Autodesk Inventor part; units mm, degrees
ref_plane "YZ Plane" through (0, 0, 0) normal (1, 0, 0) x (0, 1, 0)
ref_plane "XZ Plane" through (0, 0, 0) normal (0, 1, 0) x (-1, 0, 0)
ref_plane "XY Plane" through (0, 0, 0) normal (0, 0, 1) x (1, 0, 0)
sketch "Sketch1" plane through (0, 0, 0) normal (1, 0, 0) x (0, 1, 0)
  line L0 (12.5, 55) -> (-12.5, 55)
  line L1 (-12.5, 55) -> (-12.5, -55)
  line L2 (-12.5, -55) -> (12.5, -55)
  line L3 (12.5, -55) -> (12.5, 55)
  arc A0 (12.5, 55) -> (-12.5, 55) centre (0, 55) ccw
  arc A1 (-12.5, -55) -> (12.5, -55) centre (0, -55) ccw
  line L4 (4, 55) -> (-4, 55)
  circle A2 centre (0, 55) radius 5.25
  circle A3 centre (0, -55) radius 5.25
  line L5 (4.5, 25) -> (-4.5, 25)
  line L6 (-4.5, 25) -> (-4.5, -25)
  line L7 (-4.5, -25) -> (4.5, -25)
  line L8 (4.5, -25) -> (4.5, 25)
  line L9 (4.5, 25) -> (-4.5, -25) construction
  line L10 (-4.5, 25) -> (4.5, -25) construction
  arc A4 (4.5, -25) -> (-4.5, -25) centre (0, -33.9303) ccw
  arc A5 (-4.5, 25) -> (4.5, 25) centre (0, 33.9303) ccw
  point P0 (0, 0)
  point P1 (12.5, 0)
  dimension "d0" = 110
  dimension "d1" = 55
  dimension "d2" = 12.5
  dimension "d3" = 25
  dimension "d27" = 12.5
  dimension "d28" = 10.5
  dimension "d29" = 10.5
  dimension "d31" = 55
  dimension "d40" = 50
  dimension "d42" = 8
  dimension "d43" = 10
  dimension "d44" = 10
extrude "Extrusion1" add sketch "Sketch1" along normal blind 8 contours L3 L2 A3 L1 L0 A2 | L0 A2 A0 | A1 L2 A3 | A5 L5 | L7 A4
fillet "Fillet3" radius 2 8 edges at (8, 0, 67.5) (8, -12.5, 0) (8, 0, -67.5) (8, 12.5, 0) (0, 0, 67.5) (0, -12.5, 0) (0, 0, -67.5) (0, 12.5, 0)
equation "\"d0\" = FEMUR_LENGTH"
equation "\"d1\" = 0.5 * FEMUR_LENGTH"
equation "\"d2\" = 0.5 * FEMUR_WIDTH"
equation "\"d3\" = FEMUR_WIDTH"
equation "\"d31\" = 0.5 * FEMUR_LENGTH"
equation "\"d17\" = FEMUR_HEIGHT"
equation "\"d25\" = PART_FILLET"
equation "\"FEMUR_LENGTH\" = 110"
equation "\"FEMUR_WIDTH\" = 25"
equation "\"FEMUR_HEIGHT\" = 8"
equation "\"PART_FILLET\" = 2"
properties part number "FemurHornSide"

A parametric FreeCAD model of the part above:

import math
import FreeCAD as App
import Part
import Sketcher
from FreeCAD import Vector


def edges_at(feature, points):
    """Names of the edges that pass closest to the given points."""
    edges = feature.Shape.Edges
    near = lambda p: min(range(len(edges)), key=lambda i: edges[i].distToShape(Part.Vertex(*p))[0])
    return sorted({f"Edge{near(p) + 1}" for p in points})

doc = App.newDocument("Part")
body = doc.addObject("PartDesign::Body", "Body")

# Sketch on YZ plane
sketch1 = body.newObject("Sketcher::SketchObject", "Sketch")
sketch1.AttachmentSupport = (doc.getObject("YZ_Plane"), [""])
sketch1.MapMode = "FlatFace"
sketch1.addGeometry(Part.LineSegment(Vector(12, -55, 0), Vector(12, 55, 0)), False)
sketch1.addGeometry(Part.ArcOfCircle(Part.Circle(Vector(0, 55, 0), Vector(0, 0, 1), 12), math.radians(0), math.radians(180)), False)
sketch1.addGeometry(Part.LineSegment(Vector(-12, 55, 0), Vector(-12, -55, 0)), False)
sketch1.addGeometry(Part.ArcOfCircle(Part.Circle(Vector(0, -55, 0), Vector(0, 0, 1), 12), math.radians(180), math.radians(360)), False)
sketch1.addGeometry(Part.Circle(Vector(0, -55, 0), Vector(0, 0, 1), 5), False)
sketch1.addGeometry(Part.Circle(Vector(0, 55, 0), Vector(0, 0, 1), 5), False)
sketch1.addGeometry(Part.LineSegment(Vector(-4, -25, 0), Vector(-4, 25, 0)), False)
sketch1.addGeometry(Part.ArcOfCircle(Part.Circle(Vector(0, 34, 0), Vector(0, 0, 1), 10), math.radians(-117), math.radians(-63)), False)
sketch1.addGeometry(Part.LineSegment(Vector(4, 25, 0), Vector(4, -25, 0)), False)
sketch1.addGeometry(Part.ArcOfCircle(Part.Circle(Vector(0, -34, 0), Vector(0, 0, 1), 10), math.radians(63), math.radians(117)), False)
sketch1.addConstraint(Sketcher.Constraint("Tangent", 0, 2, 1, 1))
sketch1.addConstraint(Sketcher.Constraint("Tangent", 1, 2, 2, 1))
sketch1.addConstraint(Sketcher.Constraint("Tangent", 2, 2, 3, 1))
sketch1.addConstraint(Sketcher.Constraint("Tangent", 3, 2, 0, 1))
sketch1.addConstraint(Sketcher.Constraint("Coincident", 6, 2, 7, 1))
sketch1.addConstraint(Sketcher.Constraint("Coincident", 7, 2, 8, 1))
sketch1.addConstraint(Sketcher.Constraint("Coincident", 8, 2, 9, 1))
sketch1.addConstraint(Sketcher.Constraint("Coincident", 9, 2, 6, 1))
sketch1.addConstraint(Sketcher.Constraint("Vertical", 0))
sketch1.addConstraint(Sketcher.Constraint("Vertical", 2))
sketch1.addConstraint(Sketcher.Constraint("Vertical", 6))
sketch1.addConstraint(Sketcher.Constraint("Vertical", 8))
sketch1.addConstraint(Sketcher.Constraint("Coincident", 4, 3, 3, 3))
sketch1.addConstraint(Sketcher.Constraint("Coincident", 5, 3, 1, 3))
sketch1.addConstraint(Sketcher.Constraint("Equal", 4, 5))
sketch1.addConstraint(Sketcher.Constraint("Equal", 7, 9))
sketch1.addConstraint(Sketcher.Constraint("Symmetric", 1, 3, 3, 3, -1, 1))
sketch1.addConstraint(Sketcher.Constraint("Symmetric", 7, 3, 9, 3, -1, 1))
sketch1.addConstraint(Sketcher.Constraint("Symmetric", 6, 2, 7, 2, -2))
sketch1.addConstraint(Sketcher.Constraint("Radius", 7, 10.0))
sketch1.addConstraint(Sketcher.Constraint("Diameter", 4, 10.5))
sketch1.addConstraint(Sketcher.Constraint("Radius", 1, 12.5))
sketch1.addConstraint(Sketcher.Constraint("DistanceY", 0, 1, 0, 2, 110.0))
sketch1.addConstraint(Sketcher.Constraint("DistanceY", 6, 1, 6, 2, 50.0))
sketch1.addConstraint(Sketcher.Constraint("DistanceX", 1, 2, 6, 2, 8.0))
pad1 = body.newObject("PartDesign::Pad", "Pad")
pad1.Profile = sketch1
pad1.Length = 8
doc.recompute()

fillet = body.newObject("PartDesign::Fillet", "Fillet")
fillet.Base = (pad1, edges_at(pad1, [
    (8, 0, 67.5),
    (8, -12.5, 0),
    (8, 0, -67.5),
    (8, 12.5, 0),
    (0, 0, 67.5),
    (0, -12.5, 0),
    (0, 0, -67.5),
    (0, 12.5, 0),
]))
fillet.Radius = 2

doc.recompute()
